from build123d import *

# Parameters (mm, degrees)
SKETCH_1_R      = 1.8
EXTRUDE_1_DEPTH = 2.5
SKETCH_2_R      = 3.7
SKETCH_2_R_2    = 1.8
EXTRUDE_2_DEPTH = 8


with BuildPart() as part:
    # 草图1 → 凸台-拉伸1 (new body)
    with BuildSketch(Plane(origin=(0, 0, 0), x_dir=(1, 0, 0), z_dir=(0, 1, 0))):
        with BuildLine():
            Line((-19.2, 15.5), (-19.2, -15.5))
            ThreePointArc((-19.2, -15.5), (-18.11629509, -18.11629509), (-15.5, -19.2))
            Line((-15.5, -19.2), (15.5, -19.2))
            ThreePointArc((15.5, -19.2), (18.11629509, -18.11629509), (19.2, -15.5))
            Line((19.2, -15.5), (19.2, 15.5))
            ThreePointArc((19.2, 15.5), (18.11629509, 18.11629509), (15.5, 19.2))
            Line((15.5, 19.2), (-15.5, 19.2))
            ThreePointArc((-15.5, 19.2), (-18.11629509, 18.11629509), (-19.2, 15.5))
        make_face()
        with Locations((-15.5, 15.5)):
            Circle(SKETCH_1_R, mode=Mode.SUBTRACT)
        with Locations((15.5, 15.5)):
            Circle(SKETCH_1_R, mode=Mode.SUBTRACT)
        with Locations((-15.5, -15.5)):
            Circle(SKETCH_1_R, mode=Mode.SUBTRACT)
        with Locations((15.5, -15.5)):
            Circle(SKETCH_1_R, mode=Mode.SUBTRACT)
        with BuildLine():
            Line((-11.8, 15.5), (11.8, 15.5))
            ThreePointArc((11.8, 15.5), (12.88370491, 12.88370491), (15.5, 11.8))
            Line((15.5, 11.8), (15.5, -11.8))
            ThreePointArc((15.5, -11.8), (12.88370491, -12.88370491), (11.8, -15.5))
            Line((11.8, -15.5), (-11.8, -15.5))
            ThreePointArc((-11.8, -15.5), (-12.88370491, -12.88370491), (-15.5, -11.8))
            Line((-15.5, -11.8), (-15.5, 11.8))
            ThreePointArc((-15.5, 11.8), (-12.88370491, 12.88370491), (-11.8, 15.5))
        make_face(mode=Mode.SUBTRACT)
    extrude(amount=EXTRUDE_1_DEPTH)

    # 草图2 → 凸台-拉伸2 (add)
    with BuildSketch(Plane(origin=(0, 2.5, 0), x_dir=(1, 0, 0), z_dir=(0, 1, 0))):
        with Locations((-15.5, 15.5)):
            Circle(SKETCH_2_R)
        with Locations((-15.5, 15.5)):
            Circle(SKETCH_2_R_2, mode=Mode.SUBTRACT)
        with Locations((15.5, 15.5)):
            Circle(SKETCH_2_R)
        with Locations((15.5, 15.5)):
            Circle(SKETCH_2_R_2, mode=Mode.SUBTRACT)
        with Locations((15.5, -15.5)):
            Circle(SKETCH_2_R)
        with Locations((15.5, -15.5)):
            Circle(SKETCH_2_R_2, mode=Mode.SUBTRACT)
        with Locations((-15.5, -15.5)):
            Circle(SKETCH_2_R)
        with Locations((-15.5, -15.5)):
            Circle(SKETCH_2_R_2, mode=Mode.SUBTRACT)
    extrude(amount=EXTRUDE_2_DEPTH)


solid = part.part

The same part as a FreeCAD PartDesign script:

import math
import FreeCAD as App
import Part
import Sketcher

doc = App.newDocument("Part")
body = doc.addObject("PartDesign::Body", "Body")

# Sketch on XZ plane
sketch1 = body.newObject("Sketcher::SketchObject", "Sketch")
sketch1.AttachmentSupport = (doc.getObject("XZ_Plane"), [""])
sketch1.MapMode = "FlatFace"
sketch1.addGeometry(Part.LineSegment(App.Vector(-19.2, -15.5, 0), App.Vector(-19.2, 15.5, 0)), False)
sketch1.addGeometry(Part.ArcOfCircle(Part.Circle(App.Vector(-15.5, 15.5, 0), App.Vector(0, 0, 1), 3.7), math.radians(90), math.radians(180)), False)
sketch1.addGeometry(Part.LineSegment(App.Vector(-15.5, 19.2, 0), App.Vector(15.5, 19.2, 0)), False)
sketch1.addGeometry(Part.ArcOfCircle(Part.Circle(App.Vector(15.5, 15.5, 0), App.Vector(0, 0, 1), 3.7), math.radians(0), math.radians(90)), False)
sketch1.addGeometry(Part.LineSegment(App.Vector(19.2, 15.5, 0), App.Vector(19.2, -15.5, 0)), False)
sketch1.addGeometry(Part.ArcOfCircle(Part.Circle(App.Vector(15.5, -15.5, 0), App.Vector(0, 0, 1), 3.7), math.radians(-90), math.radians(0)), False)
sketch1.addGeometry(Part.LineSegment(App.Vector(15.5, -19.2, 0), App.Vector(-15.5, -19.2, 0)), False)
sketch1.addGeometry(Part.ArcOfCircle(Part.Circle(App.Vector(-15.5, -15.5, 0), App.Vector(0, 0, 1), 3.7), math.radians(-180), math.radians(-90)), False)
sketch1.addGeometry(Part.Circle(App.Vector(-15.5, 15.5, 0), App.Vector(0, 0, 1), 1.8), False)
sketch1.addGeometry(Part.Circle(App.Vector(15.5, 15.5, 0), App.Vector(0, 0, 1), 1.8), False)
sketch1.addGeometry(Part.Circle(App.Vector(-15.5, -15.5, 0), App.Vector(0, 0, 1), 1.8), False)
sketch1.addGeometry(Part.ArcOfCircle(Part.Circle(App.Vector(-15.5, -15.5, 0), App.Vector(0, 0, 1), 3.7), math.radians(0), math.radians(90)), False)
sketch1.addGeometry(Part.LineSegment(App.Vector(-11.8, -15.5, 0), App.Vector(11.8, -15.5, 0)), False)
sketch1.addGeometry(Part.ArcOfCircle(Part.Circle(App.Vector(15.5, -15.5, 0), App.Vector(0, 0, 1), 3.7), math.radians(90), math.radians(180)), False)
sketch1.addGeometry(Part.LineSegment(App.Vector(15.5, -11.8, 0), App.Vector(15.5, 11.8, 0)), False)
sketch1.addGeometry(Part.ArcOfCircle(Part.Circle(App.Vector(15.5, 15.5, 0), App.Vector(0, 0, 1), 3.7), math.radians(-180), math.radians(-90)), False)
sketch1.addGeometry(Part.LineSegment(App.Vector(11.8, 15.5, 0), App.Vector(-11.8, 15.5, 0)), False)
sketch1.addGeometry(Part.ArcOfCircle(Part.Circle(App.Vector(-15.5, 15.5, 0), App.Vector(0, 0, 1), 3.7), math.radians(-90), math.radians(0)), False)
sketch1.addGeometry(Part.LineSegment(App.Vector(-15.5, 11.8, 0), App.Vector(-15.5, -11.8, 0)), False)
sketch1.addGeometry(Part.Circle(App.Vector(15.5, -15.5, 0), App.Vector(0, 0, 1), 1.8), False)
sketch1.addConstraint(Sketcher.Constraint("Tangent", 0, 2, 1, 2))
sketch1.addConstraint(Sketcher.Constraint("Tangent", 1, 1, 2, 1))
sketch1.addConstraint(Sketcher.Constraint("Tangent", 2, 2, 3, 2))
sketch1.addConstraint(Sketcher.Constraint("Tangent", 3, 1, 4, 1))
sketch1.addConstraint(Sketcher.Constraint("Tangent", 4, 2, 5, 2))
sketch1.addConstraint(Sketcher.Constraint("Tangent", 5, 1, 6, 1))
sketch1.addConstraint(Sketcher.Constraint("Tangent", 6, 2, 7, 2))
sketch1.addConstraint(Sketcher.Constraint("Tangent", 7, 1, 0, 1))
sketch1.addConstraint(Sketcher.Constraint("Coincident", 11, 1, 12, 1))
sketch1.addConstraint(Sketcher.Constraint("Coincident", 12, 2, 13, 2))
sketch1.addConstraint(Sketcher.Constraint("Coincident", 13, 1, 14, 1))
sketch1.addConstraint(Sketcher.Constraint("Coincident", 14, 2, 15, 2))
sketch1.addConstraint(Sketcher.Constraint("Coincident", 15, 1, 16, 1))
sketch1.addConstraint(Sketcher.Constraint("Coincident", 16, 2, 17, 2))
sketch1.addConstraint(Sketcher.Constraint("Coincident", 17, 1, 18, 1))
sketch1.addConstraint(Sketcher.Constraint("Coincident", 18, 2, 11, 2))
sketch1.addConstraint(Sketcher.Constraint("Vertical", 0))
sketch1.addConstraint(Sketcher.Constraint("Horizontal", 2))
sketch1.addConstraint(Sketcher.Constraint("Vertical", 4))
sketch1.addConstraint(Sketcher.Constraint("Horizontal", 6))
sketch1.addConstraint(Sketcher.Constraint("Horizontal", 12))
sketch1.addConstraint(Sketcher.Constraint("Vertical", 14))
sketch1.addConstraint(Sketcher.Constraint("Horizontal", 16))
sketch1.addConstraint(Sketcher.Constraint("Vertical", 18))
sketch1.addConstraint(Sketcher.Constraint("Coincident", 8, 3, 1, 3))
sketch1.addConstraint(Sketcher.Constraint("Coincident", 9, 3, 3, 3))
sketch1.addConstraint(Sketcher.Constraint("Coincident", 10, 3, 7, 3))
sketch1.addConstraint(Sketcher.Constraint("Coincident", 11, 3, 7, 3))
sketch1.addConstraint(Sketcher.Constraint("Coincident", 13, 3, 5, 3))
sketch1.addConstraint(Sketcher.Constraint("Coincident", 15, 3, 3, 3))
sketch1.addConstraint(Sketcher.Constraint("Coincident", 17, 3, 1, 3))
sketch1.addConstraint(Sketcher.Constraint("Coincident", 19, 3, 5, 3))
sketch1.addConstraint(Sketcher.Constraint("Equal", 1, 3))
sketch1.addConstraint(Sketcher.Constraint("Equal", 3, 5))
sketch1.addConstraint(Sketcher.Constraint("Equal", 5, 7))
sketch1.addConstraint(Sketcher.Constraint("Equal", 8, 9))
sketch1.addConstraint(Sketcher.Constraint("Equal", 9, 10))
sketch1.addConstraint(Sketcher.Constraint("Equal", 7, 11))
sketch1.addConstraint(Sketcher.Constraint("Equal", 11, 13))
sketch1.addConstraint(Sketcher.Constraint("Equal", 13, 15))
sketch1.addConstraint(Sketcher.Constraint("Equal", 15, 17))
sketch1.addConstraint(Sketcher.Constraint("Equal", 10, 19))
sketch1.addConstraint(Sketcher.Constraint("Symmetric", 1, 3, 5, 3, -1, 1))
sketch1.addConstraint(Sketcher.Constraint("Horizontal", 7, 1, 11, 1))
sketch1.addConstraint(Sketcher.Constraint("Horizontal", 3, 1, 15, 1))
sketch1.addConstraint(Sketcher.Constraint("Vertical", 5, 1, 13, 1))
sketch1.addConstraint(Sketcher.Constraint("Vertical", 6, 2, 17, 1))
sketch1.addConstraint(Sketcher.Constraint("Equal", 6, 0))
sketch1.addConstraint(Sketcher.Constraint("Diameter", 8, 3.6))
sketch1.addConstraint(Sketcher.Constraint("Radius", 1, 3.7))
sketch1.addConstraint(Sketcher.Constraint("DistanceX", 2, 1, 2, 2, 31.0))
pad1 = body.newObject("PartDesign::Pad", "Pad")
pad1.Profile = sketch1
pad1.Length = 2.5
pad1.Reversed = True

# Sketch on XZ plane
sketch2 = body.newObject("Sketcher::SketchObject", "Sketch001")
sketch2.AttachmentSupport = (doc.getObject("XZ_Plane"), [""])
sketch2.MapMode = "FlatFace"
sketch2.AttachmentOffset = App.Placement(App.Vector(0, 0, -2.5), App.Rotation())
sketch2.addGeometry(Part.Circle(App.Vector(-15.5, -15.5, 0), App.Vector(0, 0, 1), 3.7), False)
sketch2.addGeometry(Part.Circle(App.Vector(-15.5, -15.5, 0), App.Vector(0, 0, 1), 1.8), False)
sketch2.addGeometry(Part.Circle(App.Vector(15.5, -15.5, 0), App.Vector(0, 0, 1), 3.7), False)
sketch2.addGeometry(Part.Circle(App.Vector(15.5, -15.5, 0), App.Vector(0, 0, 1), 1.8), False)
sketch2.addGeometry(Part.Circle(App.Vector(15.5, 15.5, 0), App.Vector(0, 0, 1), 3.7), False)
sketch2.addGeometry(Part.Circle(App.Vector(15.5, 15.5, 0), App.Vector(0, 0, 1), 1.8), False)
sketch2.addGeometry(Part.Circle(App.Vector(-15.5, 15.5, 0), App.Vector(0, 0, 1), 3.7), False)
sketch2.addGeometry(Part.Circle(App.Vector(-15.5, 15.5, 0), App.Vector(0, 0, 1), 1.8), False)
sketch2.addConstraint(Sketcher.Constraint("Coincident", 1, 3, 0, 3))
sketch2.addConstraint(Sketcher.Constraint("Coincident", 3, 3, 2, 3))
sketch2.addConstraint(Sketcher.Constraint("Coincident", 5, 3, 4, 3))
sketch2.addConstraint(Sketcher.Constraint("Coincident", 7, 3, 6, 3))
sketch2.addConstraint(Sketcher.Constraint("Equal", 0, 2))
sketch2.addConstraint(Sketcher.Constraint("Equal", 1, 3))
sketch2.addConstraint(Sketcher.Constraint("Equal", 2, 4))
sketch2.addConstraint(Sketcher.Constraint("Equal", 3, 5))
sketch2.addConstraint(Sketcher.Constraint("Equal", 4, 6))
sketch2.addConstraint(Sketcher.Constraint("Equal", 5, 7))
sketch2.addConstraint(Sketcher.Constraint("Symmetric", 0, 3, 4, 3, -1, 1))
sketch2.addConstraint(Sketcher.Constraint("Symmetric", 2, 3, 6, 3, -1, 1))
sketch2.addConstraint(Sketcher.Constraint("Symmetric", 0, 3, 2, 3, -2))
sketch2.addConstraint(Sketcher.Constraint("Diameter", 0, 7.4))
sketch2.addConstraint(Sketcher.Constraint("Diameter", 1, 3.6))
sketch2.addConstraint(Sketcher.Constraint("DistanceX", 0, 3, 2, 3, 31.0))
sketch2.addConstraint(Sketcher.Constraint("DistanceY", 2, 3, 4, 3, 31.0))
pad2 = body.newObject("PartDesign::Pad", "Pad001")
pad2.Profile = sketch2
pad2.Length = 8
pad2.Reversed = True

doc.recompute()
